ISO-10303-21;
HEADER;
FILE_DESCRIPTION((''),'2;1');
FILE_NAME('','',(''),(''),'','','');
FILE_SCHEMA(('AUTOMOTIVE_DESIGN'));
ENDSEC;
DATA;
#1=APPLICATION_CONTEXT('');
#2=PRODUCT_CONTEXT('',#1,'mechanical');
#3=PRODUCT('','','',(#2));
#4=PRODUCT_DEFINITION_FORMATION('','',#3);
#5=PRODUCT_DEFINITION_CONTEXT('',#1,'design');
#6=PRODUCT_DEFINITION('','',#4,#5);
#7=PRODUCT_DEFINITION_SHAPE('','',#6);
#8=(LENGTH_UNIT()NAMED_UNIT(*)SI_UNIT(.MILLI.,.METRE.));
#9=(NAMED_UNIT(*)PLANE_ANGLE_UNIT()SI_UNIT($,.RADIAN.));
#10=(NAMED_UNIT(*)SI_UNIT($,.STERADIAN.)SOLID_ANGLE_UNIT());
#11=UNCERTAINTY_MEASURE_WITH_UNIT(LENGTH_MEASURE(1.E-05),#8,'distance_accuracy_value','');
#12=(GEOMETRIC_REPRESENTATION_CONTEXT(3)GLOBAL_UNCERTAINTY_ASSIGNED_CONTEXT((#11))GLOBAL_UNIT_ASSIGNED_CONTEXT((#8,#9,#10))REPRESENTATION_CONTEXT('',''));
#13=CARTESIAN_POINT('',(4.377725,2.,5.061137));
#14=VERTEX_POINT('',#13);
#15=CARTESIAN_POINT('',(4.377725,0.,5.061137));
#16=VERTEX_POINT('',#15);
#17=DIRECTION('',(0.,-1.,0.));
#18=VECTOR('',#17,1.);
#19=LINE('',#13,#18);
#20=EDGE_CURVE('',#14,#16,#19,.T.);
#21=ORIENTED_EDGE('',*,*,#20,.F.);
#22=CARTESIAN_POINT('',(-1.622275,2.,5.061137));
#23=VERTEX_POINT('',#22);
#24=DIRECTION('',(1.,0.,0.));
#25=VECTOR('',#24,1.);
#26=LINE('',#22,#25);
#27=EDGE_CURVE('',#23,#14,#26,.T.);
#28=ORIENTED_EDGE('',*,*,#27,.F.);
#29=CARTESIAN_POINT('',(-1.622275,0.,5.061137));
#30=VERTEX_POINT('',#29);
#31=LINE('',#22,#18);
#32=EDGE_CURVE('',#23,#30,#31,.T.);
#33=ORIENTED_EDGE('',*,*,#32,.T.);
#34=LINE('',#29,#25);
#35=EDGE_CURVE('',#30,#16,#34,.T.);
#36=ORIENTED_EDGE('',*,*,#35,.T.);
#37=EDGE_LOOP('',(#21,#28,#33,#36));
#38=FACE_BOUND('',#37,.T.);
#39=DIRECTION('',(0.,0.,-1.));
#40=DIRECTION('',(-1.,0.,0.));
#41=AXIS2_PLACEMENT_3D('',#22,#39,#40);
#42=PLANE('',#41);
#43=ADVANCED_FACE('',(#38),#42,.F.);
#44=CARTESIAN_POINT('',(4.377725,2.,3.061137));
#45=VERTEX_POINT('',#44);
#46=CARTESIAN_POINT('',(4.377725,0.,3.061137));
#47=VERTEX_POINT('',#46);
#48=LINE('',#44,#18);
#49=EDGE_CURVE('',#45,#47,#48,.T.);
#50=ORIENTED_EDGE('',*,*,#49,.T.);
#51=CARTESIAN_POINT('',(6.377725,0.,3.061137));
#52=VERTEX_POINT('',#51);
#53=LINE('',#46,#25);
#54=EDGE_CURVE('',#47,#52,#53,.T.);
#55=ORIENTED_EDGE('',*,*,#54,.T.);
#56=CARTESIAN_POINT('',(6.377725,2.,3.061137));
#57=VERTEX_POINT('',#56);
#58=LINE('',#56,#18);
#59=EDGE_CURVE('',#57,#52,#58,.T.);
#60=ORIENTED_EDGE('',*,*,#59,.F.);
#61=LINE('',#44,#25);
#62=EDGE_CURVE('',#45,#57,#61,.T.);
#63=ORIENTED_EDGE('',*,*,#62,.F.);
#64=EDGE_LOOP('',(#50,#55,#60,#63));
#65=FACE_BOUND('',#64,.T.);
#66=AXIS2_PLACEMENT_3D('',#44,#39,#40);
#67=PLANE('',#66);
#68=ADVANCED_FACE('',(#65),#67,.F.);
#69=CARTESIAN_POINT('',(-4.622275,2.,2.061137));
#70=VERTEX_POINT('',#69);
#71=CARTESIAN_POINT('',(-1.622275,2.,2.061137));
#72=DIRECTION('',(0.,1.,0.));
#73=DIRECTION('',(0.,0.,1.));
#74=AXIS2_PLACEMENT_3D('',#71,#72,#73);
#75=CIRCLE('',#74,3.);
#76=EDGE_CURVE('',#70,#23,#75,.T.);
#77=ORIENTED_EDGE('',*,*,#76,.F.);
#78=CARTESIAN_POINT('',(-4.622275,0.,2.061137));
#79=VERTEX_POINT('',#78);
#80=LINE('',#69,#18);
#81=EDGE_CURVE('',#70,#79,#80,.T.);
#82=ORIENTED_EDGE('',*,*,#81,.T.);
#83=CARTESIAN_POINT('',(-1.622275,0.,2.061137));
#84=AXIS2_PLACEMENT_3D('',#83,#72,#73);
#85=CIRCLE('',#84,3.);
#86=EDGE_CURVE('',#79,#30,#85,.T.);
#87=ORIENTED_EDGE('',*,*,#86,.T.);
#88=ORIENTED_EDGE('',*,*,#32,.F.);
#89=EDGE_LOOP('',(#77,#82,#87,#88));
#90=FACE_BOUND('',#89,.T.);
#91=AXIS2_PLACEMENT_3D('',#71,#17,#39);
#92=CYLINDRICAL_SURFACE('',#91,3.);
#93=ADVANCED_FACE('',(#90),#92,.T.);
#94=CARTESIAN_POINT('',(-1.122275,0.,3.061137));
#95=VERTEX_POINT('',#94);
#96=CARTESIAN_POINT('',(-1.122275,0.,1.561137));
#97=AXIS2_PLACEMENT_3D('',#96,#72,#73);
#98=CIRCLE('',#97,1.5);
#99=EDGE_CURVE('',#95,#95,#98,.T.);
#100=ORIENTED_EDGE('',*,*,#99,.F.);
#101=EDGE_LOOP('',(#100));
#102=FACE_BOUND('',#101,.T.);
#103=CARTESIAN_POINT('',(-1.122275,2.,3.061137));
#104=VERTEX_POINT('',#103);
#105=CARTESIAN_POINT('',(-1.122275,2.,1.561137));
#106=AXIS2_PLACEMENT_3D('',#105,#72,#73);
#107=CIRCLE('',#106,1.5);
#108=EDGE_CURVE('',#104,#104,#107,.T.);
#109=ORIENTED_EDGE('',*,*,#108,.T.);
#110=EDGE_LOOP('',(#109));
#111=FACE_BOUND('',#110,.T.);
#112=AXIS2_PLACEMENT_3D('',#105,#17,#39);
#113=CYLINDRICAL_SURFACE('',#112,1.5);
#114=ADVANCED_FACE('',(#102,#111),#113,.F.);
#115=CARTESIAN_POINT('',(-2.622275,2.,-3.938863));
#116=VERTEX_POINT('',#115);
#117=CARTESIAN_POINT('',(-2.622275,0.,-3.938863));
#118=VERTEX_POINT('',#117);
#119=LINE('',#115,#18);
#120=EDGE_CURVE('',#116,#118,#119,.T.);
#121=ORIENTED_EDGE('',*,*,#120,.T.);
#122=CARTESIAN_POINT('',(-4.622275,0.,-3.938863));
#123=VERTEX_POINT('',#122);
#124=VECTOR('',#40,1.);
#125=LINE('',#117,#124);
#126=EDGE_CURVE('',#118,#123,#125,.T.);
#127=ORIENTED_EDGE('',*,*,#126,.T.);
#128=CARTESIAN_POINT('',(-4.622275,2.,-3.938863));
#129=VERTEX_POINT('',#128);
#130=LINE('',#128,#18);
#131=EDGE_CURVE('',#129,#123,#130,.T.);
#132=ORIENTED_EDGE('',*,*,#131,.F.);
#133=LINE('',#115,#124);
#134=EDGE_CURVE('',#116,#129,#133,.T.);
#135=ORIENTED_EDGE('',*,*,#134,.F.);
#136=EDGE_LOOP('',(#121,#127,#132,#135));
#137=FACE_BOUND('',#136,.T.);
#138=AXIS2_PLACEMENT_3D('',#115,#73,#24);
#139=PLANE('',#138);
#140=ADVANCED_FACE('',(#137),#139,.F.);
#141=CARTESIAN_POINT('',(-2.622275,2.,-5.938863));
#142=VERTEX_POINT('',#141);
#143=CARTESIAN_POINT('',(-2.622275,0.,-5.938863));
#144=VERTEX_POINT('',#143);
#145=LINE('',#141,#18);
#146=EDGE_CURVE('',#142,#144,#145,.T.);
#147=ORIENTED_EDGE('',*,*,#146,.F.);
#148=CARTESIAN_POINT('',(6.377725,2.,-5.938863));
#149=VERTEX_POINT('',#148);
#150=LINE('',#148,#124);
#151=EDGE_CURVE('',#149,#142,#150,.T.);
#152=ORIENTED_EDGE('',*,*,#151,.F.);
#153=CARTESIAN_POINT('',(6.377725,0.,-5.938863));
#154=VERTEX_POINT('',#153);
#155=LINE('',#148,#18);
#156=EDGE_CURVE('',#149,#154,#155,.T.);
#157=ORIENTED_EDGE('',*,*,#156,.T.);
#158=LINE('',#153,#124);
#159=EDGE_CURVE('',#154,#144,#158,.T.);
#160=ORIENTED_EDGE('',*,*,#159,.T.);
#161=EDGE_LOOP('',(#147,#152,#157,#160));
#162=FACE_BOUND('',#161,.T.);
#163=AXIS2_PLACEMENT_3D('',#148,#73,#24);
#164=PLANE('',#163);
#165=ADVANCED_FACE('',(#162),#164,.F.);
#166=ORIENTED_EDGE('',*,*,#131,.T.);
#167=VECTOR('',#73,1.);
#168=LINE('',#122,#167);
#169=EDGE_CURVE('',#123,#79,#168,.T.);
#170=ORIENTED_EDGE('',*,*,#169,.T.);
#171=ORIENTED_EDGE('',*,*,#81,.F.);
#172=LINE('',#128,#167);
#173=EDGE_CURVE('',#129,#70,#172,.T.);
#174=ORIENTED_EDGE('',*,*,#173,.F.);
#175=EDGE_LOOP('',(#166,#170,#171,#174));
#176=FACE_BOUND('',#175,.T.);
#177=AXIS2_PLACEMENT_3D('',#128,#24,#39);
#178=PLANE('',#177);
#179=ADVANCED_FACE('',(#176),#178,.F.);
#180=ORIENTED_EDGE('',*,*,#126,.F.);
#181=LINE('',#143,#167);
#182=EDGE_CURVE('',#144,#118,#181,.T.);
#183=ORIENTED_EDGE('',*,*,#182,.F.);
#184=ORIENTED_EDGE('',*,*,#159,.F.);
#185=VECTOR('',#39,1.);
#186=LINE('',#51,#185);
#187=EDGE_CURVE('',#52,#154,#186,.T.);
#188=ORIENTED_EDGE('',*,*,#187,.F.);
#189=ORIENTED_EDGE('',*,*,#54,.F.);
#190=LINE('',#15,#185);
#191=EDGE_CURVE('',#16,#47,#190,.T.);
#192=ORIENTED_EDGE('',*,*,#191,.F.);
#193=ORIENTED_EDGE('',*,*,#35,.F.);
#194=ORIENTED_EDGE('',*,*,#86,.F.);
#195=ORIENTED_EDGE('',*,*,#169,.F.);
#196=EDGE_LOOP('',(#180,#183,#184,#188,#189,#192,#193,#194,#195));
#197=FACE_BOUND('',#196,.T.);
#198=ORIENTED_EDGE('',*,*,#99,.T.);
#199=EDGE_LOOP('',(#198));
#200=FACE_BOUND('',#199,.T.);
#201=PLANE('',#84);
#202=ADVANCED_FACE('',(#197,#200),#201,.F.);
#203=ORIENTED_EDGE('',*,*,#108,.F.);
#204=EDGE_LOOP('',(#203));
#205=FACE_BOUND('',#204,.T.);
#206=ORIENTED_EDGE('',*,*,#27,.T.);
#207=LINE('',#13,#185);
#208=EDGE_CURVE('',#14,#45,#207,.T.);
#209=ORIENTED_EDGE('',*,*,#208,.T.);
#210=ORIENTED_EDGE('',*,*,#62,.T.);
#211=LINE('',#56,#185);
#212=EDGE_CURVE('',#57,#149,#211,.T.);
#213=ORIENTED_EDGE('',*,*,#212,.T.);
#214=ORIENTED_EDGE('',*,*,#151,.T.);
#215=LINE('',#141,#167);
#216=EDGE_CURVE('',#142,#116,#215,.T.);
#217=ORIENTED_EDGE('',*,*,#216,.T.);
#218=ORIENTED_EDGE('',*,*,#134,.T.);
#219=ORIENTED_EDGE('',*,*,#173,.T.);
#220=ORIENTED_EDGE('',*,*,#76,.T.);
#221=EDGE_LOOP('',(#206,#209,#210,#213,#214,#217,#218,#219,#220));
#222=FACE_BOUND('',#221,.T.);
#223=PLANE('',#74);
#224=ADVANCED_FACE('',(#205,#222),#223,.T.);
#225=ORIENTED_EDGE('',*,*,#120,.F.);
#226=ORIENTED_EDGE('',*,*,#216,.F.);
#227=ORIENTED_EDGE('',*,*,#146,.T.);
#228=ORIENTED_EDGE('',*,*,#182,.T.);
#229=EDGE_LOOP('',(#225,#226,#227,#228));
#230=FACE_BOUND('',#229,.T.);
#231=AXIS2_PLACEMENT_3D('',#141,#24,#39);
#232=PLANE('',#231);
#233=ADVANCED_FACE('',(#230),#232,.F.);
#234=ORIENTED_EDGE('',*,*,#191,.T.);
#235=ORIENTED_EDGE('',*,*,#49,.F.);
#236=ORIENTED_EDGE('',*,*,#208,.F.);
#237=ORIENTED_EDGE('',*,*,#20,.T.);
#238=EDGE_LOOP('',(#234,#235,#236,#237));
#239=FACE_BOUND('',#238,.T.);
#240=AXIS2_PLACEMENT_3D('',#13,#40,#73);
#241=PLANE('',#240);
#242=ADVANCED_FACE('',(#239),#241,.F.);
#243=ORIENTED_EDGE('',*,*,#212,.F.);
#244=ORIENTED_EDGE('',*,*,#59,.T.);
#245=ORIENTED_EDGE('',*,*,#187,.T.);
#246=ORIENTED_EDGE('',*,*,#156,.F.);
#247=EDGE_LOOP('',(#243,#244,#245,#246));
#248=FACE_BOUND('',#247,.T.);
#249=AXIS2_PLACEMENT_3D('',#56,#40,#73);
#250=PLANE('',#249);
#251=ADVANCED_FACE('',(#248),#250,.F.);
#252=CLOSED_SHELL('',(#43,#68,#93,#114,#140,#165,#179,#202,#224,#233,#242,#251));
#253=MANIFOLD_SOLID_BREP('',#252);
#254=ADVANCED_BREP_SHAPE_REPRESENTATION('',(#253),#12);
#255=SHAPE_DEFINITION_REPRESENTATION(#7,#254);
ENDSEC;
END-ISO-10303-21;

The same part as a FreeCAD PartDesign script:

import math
import FreeCAD as App
import Part
import Sketcher

V = App.Vector
Q = App.Units.Quantity

doc = App.newDocument("Part")
body = doc.addObject("PartDesign::Body", "Body")

sketch1 = body.newObject("Sketcher::SketchObject", "Sketch")
sketch1.AttachmentSupport = (doc.getObject("XZ_Plane"), [""])
sketch1.MapMode = "FlatFace"
sketch1.addGeometry([
    Part.LineSegment(V(6.4, -5.9, 0), V(-2.6, -5.9, 0)),
    Part.LineSegment(V(-2.6, -5.9, 0), V(-2.6, -3.9, 0)),
    Part.LineSegment(V(-2.6, -3.9, 0), V(-4.6, -3.9, 0)),
    Part.LineSegment(V(-4.6, -3.9, 0), V(-4.6, 2.1, 0)),
    Part.ArcOfCircle(Part.Circle(V(-1.6, 2.1, 0), V(0, 0, 1), 3), math.radians(90), math.radians(180)),
    Part.LineSegment(V(-1.6, 5.1, 0), V(4.4, 5.1, 0)),
    Part.LineSegment(V(4.4, 5.1, 0), V(4.4, 3.1, 0)),
    Part.LineSegment(V(4.4, 3.1, 0), V(6.4, 3.1, 0)),
    Part.LineSegment(V(6.4, 3.1, 0), V(6.4, -5.9, 0)),
    Part.Circle(V(-1.1, 1.6, 0), V(0, 0, 1), 1.5),
], False)
sketch1.addConstraint([
    Sketcher.Constraint("Coincident", 0, 2, 1, 1),
    Sketcher.Constraint("Coincident", 1, 2, 2, 1),
    Sketcher.Constraint("Coincident", 2, 2, 3, 1),
    Sketcher.Constraint("Tangent", 3, 2, 4, 2),
    Sketcher.Constraint("Tangent", 4, 1, 5, 1),
    Sketcher.Constraint("Coincident", 5, 2, 6, 1),
    Sketcher.Constraint("Coincident", 6, 2, 7, 1),
    Sketcher.Constraint("Coincident", 7, 2, 8, 1),
    Sketcher.Constraint("Coincident", 8, 2, 0, 1),
    Sketcher.Constraint("Horizontal", 0),
    Sketcher.Constraint("Vertical", 1),
    Sketcher.Constraint("Horizontal", 2),
    Sketcher.Constraint("Vertical", 3),
    Sketcher.Constraint("Horizontal", 5),
    Sketcher.Constraint("Vertical", 6),
    Sketcher.Constraint("Horizontal", 7),
    Sketcher.Constraint("Vertical", 8),
    Sketcher.Constraint("Equal", 2, 7),
    Sketcher.Constraint("Equal", 7, 1),
    Sketcher.Constraint("Equal", 5, 3),
    Sketcher.Constraint("Equal", 1, 6),
    Sketcher.Constraint("Diameter", 9, Q("3 mm")),
    Sketcher.Constraint("Radius", 4, Q("3 mm")),
    Sketcher.Constraint("DistanceX", 0, 2, 0, 1, Q("9 mm")),
    Sketcher.Constraint("DistanceX", 2, 2, 2, 1, Q("2 mm")),
    Sketcher.Constraint("DistanceX", 4, 3, 9, 3, Q("0.5 mm")),
    Sketcher.Constraint("DistanceY", 9, 3, 4, 3, Q("0.5 mm")),
    Sketcher.Constraint("DistanceX", 4, 3, -1, 1, Q("1.622275 mm")),
    Sketcher.Constraint("DistanceY", -1, 1, 4, 3, Q("2.061137 mm")),
])
pad1 = body.newObject("PartDesign::Pad", "Pad")
pad1.Profile = sketch1
pad1.Length = 2
pad1.Reversed = True

doc.recompute()
